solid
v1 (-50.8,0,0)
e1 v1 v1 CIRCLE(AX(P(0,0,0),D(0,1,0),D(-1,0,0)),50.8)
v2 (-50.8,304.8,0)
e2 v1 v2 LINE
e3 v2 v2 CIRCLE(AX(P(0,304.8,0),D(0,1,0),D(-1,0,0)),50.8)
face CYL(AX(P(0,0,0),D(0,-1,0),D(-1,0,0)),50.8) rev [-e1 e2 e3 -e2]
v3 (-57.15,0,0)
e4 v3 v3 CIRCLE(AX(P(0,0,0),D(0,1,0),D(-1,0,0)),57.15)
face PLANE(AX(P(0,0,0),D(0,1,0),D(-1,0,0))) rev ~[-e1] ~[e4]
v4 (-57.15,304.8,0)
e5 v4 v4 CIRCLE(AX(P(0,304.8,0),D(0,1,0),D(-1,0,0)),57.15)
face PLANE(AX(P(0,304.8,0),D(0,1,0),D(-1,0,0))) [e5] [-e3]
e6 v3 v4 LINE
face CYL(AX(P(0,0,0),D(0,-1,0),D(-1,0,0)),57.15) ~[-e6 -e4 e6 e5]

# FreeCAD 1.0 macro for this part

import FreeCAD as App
import Part
import Sketcher

V = App.Vector
Q = App.Units.Quantity

doc = App.newDocument("Part")
body = doc.addObject("PartDesign::Body", "Body")

# Sketch on XZ plane
sketch1 = body.newObject("Sketcher::SketchObject", "Sketch")
sketch1.AttachmentSupport = (doc.getObject("XZ_Plane"), [""])
sketch1.MapMode = "FlatFace"
sketch1.addGeometry([
    Part.Circle(V(0, 0, 0), V(0, 0, 1), 57.15),
    Part.Circle(V(0, 0, 0), V(0, 0, 1), 50.8),
], False)
sketch1.addConstraint([
    Sketcher.Constraint("Coincident", 0, 3, -1, 1),
    Sketcher.Constraint("Coincident", 1, 3, -1, 1),
    Sketcher.Constraint("Diameter", 1, Q("4 in")),
    Sketcher.Constraint("Diameter", 0, Q("4.5 in")),
])
pad1 = body.newObject("PartDesign::Pad", "Pad")
pad1.Profile = sketch1
pad1.Length = Q("12 in")
pad1.Reversed = True

doc.recompute()
